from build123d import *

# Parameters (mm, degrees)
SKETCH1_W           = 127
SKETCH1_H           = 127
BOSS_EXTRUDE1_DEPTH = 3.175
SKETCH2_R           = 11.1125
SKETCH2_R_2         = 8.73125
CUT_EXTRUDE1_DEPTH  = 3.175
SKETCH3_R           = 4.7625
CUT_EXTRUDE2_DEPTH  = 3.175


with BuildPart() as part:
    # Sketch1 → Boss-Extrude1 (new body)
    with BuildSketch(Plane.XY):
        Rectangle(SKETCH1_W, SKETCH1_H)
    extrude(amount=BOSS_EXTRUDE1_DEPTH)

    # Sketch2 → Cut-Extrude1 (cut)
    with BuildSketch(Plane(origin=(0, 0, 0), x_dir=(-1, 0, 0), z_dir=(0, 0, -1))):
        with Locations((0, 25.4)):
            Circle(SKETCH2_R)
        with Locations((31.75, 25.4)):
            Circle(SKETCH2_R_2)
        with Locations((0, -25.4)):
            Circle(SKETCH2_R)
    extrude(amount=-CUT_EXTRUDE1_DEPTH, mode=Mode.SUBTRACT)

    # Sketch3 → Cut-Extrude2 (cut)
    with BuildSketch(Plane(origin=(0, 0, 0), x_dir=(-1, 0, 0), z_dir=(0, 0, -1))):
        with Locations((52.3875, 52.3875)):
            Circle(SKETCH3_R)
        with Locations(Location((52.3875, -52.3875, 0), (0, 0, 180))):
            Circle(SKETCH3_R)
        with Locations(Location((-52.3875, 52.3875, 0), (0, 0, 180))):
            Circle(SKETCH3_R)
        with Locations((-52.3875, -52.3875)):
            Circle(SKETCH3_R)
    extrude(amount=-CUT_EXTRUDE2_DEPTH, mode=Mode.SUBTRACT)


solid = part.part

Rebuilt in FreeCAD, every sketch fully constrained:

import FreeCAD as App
import Part
import Sketcher

V = App.Vector
Q = App.Units.Quantity


def add_polygon(sketch, points):
    """Adds a closed chain of lines whose ends are joined by coincident constraints."""
    first, n = sketch.GeometryCount, len(points)
    for a, b in zip(points, points[1:] + points[:1]):
        sketch.addGeometry(Part.LineSegment(App.Vector(*a, 0), App.Vector(*b, 0)), False)
    for i in range(n):
        sketch.addConstraint(Sketcher.Constraint("Coincident", first + i, 2, first + (i + 1) % n, 1))

doc = App.newDocument("Part")
params = doc.addObject("Spreadsheet::Sheet", "Params")
for row, (alias, value) in enumerate([
    ("sketch1_width", "5 in"),
    ("pad1_length", "0.125 in"),
    ("sketch2_diameter", "0.875 in"),
    ("sketch2_diameter2", "0.6875 in"),
    ("pocket1_length", "0.125 in"),
    ("sketch3_diameter", "0.375 in"),
    ("pocket2_length", "0.125 in"),
], start=1):
    params.set(f"A{row}", alias)
    params.set(f"B{row}", "=" + value)
    params.setAlias(f"B{row}", alias)

body = doc.addObject("PartDesign::Body", "Body")

# Sketch on XY plane
sketch1 = doc.addObject("Sketcher::SketchObject", "Sketch")
body.addObject(sketch1)
sketch1.AttachmentSupport = (doc.XY_Plane, [""])
sketch1.MapMode = "FlatFace"
add_polygon(sketch1, [(-64, 64), (-64, -64), (64, -64), (64, 64)])  # lines 0-3
sketch1.addConstraint(Sketcher.Constraint("Vertical", 0))
sketch1.addConstraint(Sketcher.Constraint("Horizontal", 1))
sketch1.addConstraint(Sketcher.Constraint("Vertical", 2))
sketch1.addConstraint(Sketcher.Constraint("Horizontal", 3))
sketch1.addConstraint(Sketcher.Constraint("Symmetric", 0, 2, 2, 2, -1, 1))
sketch1.addConstraint(Sketcher.Constraint("Equal", 3, 0))
sketch1.addConstraint(Sketcher.Constraint("DistanceX", 1, 1, 1, 2, Q("5 in")))
sketch1.setExpression("Constraints[10]", "Params.sketch1_width")
pad1 = doc.addObject("PartDesign::Pad", "Pad")
body.addObject(pad1)
pad1.Profile = sketch1
pad1.setExpression("Length", "Params.pad1_length")

# Sketch on XY plane
sketch2 = doc.addObject("Sketcher::SketchObject", "Sketch001")
body.addObject(sketch2)
sketch2.AttachmentSupport = (doc.XY_Plane, [""])
sketch2.MapMode = "FlatFace"
sketch2.addGeometry(Part.Circle(V(0, 25, 0), V(0, 0, 1), 11), False)
sketch2.addGeometry(Part.Circle(V(-32, 25, 0), V(0, 0, 1), 9), False)
sketch2.addGeometry(Part.Circle(V(0, -25, 0), V(0, 0, 1), 11), False)
sketch2.addConstraint(Sketcher.Constraint("Equal", 0, 2))
sketch2.addConstraint(Sketcher.Constraint("Symmetric", 0, 3, 2, 3, -1, 1))
sketch2.addConstraint(Sketcher.Constraint("PointOnObject", 0, 3, -2))
sketch2.addConstraint(Sketcher.Constraint("Horizontal", 0, 3, 1, 3))
sketch2.addConstraint(Sketcher.Constraint("Diameter", 0, Q("0.875 in")))
sketch2.addConstraint(Sketcher.Constraint("Diameter", 1, Q("0.6875 in")))
sketch2.addConstraint(Sketcher.Constraint("DistanceY", -1, 1, 0, 3, Q("1 in")))
sketch2.addConstraint(Sketcher.Constraint("DistanceX", 1, 3, -1, 1, Q("1.25 in")))
sketch2.setExpression("Constraints[4]", "Params.sketch2_diameter")
sketch2.setExpression("Constraints[5]", "Params.sketch2_diameter2")
pocket1 = doc.addObject("PartDesign::Pocket", "Pocket")
body.addObject(pocket1)
pocket1.Profile = sketch2
pocket1.setExpression("Length", "Params.pocket1_length")
pocket1.Reversed = True

# Sketch on XY plane
sketch3 = doc.addObject("Sketcher::SketchObject", "Sketch002")
body.addObject(sketch3)
sketch3.AttachmentSupport = (doc.XY_Plane, [""])
sketch3.MapMode = "FlatFace"
sketch3.addGeometry(Part.Circle(V(-52.4, 52.4, 0), V(0, 0, 1), 4.8), False)
sketch3.addGeometry(Part.Circle(V(-52.4, -52.4, 0), V(0, 0, 1), 4.8), False)
sketch3.addGeometry(Part.Circle(V(52.4, 52.4, 0), V(0, 0, 1), 4.8), False)
sketch3.addGeometry(Part.Circle(V(52.4, -52.4, 0), V(0, 0, 1), 4.8), False)
sketch3.addConstraint(Sketcher.Constraint("Equal", 0, 1))
sketch3.addConstraint(Sketcher.Constraint("Equal", 1, 2))
sketch3.addConstraint(Sketcher.Constraint("Equal", 2, 3))
sketch3.addConstraint(Sketcher.Constraint("Symmetric", 1, 3, 2, 3, -1, 1))
sketch3.addConstraint(Sketcher.Constraint("Symmetric", 0, 3, 3, 3, -1, 1))
sketch3.addConstraint(Sketcher.Constraint("Symmetric", 0, 3, 2, 3, -2))
sketch3.addConstraint(Sketcher.Constraint("Diameter", 0, Q("0.375 in")))
sketch3.addConstraint(Sketcher.Constraint("DistanceX", 0, 3, -1, 1, Q("2.0625 in")))
sketch3.addConstraint(Sketcher.Constraint("DistanceY", -1, 1, 0, 3, Q("2.0625 in")))
sketch3.setExpression("Constraints[6]", "Params.sketch3_diameter")
pocket2 = doc.addObject("PartDesign::Pocket", "Pocket001")
body.addObject(pocket2)
pocket2.Profile = sketch3
pocket2.setExpression("Length", "Params.pocket2_length")
pocket2.Reversed = True

doc.recompute()
